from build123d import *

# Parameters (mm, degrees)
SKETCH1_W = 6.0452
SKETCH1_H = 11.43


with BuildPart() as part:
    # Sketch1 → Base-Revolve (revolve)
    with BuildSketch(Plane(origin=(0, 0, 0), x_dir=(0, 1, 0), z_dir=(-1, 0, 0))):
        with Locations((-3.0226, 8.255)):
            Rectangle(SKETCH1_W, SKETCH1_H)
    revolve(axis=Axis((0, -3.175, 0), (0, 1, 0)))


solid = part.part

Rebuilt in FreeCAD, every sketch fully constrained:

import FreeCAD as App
import Part
import Sketcher

V = App.Vector
Q = App.Units.Quantity


def add_polygon(sketch, points):
    """Adds a closed chain of lines whose ends are joined by coincident constraints."""
    first, n = sketch.GeometryCount, len(points)
    for a, b in zip(points, points[1:] + points[:1]):
        sketch.addGeometry(Part.LineSegment(App.Vector(*a, 0), App.Vector(*b, 0)), False)
    for i in range(n):
        sketch.addConstraint(Sketcher.Constraint("Coincident", first + i, 2, first + (i + 1) % n, 1))

doc = App.newDocument("Part")
body = doc.addObject("PartDesign::Body", "Body")

sketch1 = body.newObject("Sketcher::SketchObject", "Sketch")
sketch1.AttachmentSupport = (doc.getObject("YZ_Plane"), [""])
sketch1.MapMode = "FlatFace"
add_polygon(sketch1, [(-6, -14), (-6, -3), (0, -3), (0, -14)])
sketch1.addConstraint([
    Sketcher.Constraint("Vertical", 0),
    Sketcher.Constraint("Horizontal", 1),
    Sketcher.Constraint("Vertical", 2),
    Sketcher.Constraint("Horizontal", 3),
    Sketcher.Constraint("PointOnObject", 1, 2, -2),
    Sketcher.Constraint("DistanceY", 0, 1, 0, 2, Q("0.45 in")),
    Sketcher.Constraint("DistanceY", 0, 2, -1, 1, Q("0.1 in")),
    Sketcher.Constraint("DistanceX", 1, 1, 1, 2, Q("0.238 in")),
])
revolution = body.newObject("PartDesign::Revolution", "Revolution")
revolution.Profile = sketch1
revolution.ReferenceAxis = (sketch1, ["H_Axis"])
revolution.Angle = 360

doc.recompute()
